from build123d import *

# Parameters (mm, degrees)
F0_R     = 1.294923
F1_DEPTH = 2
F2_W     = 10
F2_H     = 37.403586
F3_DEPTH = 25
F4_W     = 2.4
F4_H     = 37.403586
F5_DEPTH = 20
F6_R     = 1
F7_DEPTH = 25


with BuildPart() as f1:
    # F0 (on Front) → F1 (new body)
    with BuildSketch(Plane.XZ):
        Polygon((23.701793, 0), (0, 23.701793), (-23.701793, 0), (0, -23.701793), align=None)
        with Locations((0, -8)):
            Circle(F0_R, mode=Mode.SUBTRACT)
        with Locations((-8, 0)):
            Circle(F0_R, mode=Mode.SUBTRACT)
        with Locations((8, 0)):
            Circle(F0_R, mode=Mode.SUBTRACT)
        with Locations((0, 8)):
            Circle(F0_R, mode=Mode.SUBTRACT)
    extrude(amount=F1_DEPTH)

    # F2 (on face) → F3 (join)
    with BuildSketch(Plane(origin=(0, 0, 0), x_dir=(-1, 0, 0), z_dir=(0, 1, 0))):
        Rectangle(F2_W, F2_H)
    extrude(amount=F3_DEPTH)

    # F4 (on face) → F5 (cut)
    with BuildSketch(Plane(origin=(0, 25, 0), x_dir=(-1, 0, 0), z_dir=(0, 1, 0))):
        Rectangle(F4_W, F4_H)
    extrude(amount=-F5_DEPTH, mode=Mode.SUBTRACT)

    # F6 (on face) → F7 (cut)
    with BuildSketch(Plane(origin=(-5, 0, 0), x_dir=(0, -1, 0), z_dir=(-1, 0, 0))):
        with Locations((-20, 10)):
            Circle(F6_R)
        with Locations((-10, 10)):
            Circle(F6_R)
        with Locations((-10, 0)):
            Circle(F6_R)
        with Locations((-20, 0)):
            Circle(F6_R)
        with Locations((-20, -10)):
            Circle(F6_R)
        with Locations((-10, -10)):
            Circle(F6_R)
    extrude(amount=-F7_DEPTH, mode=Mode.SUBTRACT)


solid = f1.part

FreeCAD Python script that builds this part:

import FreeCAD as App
import Part
import Sketcher


def add_polygon(sketch, points):
    """Adds a closed chain of lines whose ends are joined by coincident constraints."""
    first, n = sketch.GeometryCount, len(points)
    for a, b in zip(points, points[1:] + points[:1]):
        sketch.addGeometry(Part.LineSegment(App.Vector(*a, 0), App.Vector(*b, 0)), False)
    for i in range(n):
        sketch.addConstraint(Sketcher.Constraint("Coincident", first + i, 2, first + (i + 1) % n, 1))

doc = App.newDocument("Part")
body = doc.addObject("PartDesign::Body", "Body")

# Sketch on XZ plane
sketch1 = body.newObject("Sketcher::SketchObject", "Sketch")
sketch1.AttachmentSupport = (doc.getObject("XZ_Plane"), [""])
sketch1.MapMode = "FlatFace"
add_polygon(sketch1, [(23.7, 0), (0, 23.7), (-23.7, 0), (0, -23.7)])  # lines 0-3
sketch1.addGeometry(Part.Circle(App.Vector(0, -8, 0), App.Vector(0, 0, 1), 1.3), False)  # 4
sketch1.addGeometry(Part.Circle(App.Vector(-8, 0, 0), App.Vector(0, 0, 1), 1.3), False)  # 5
sketch1.addGeometry(Part.Circle(App.Vector(8, 0, 0), App.Vector(0, 0, 1), 1.3), False)  # 6
sketch1.addGeometry(Part.Circle(App.Vector(0, 8, 0), App.Vector(0, 0, 1), 1.3), False)  # 7
sketch1.addConstraint([
    Sketcher.Constraint("Equal", 4, 5),
    Sketcher.Constraint("Equal", 5, 6),
    Sketcher.Constraint("Equal", 6, 7),
    Sketcher.Constraint("Symmetric", 5, 3, 6, 3, -1, 1),
    Sketcher.Constraint("Symmetric", 4, 3, 7, 3, -1, 1),
    Sketcher.Constraint("Symmetric", 0, 2, 2, 2, -1, 1),
    Sketcher.Constraint("Symmetric", 1, 2, 3, 2, -1, 1),
    Sketcher.Constraint("PointOnObject", 4, 3, -2),
    Sketcher.Constraint("PointOnObject", 5, 3, -1),
    Sketcher.Constraint("PointOnObject", 0, 2, -2),
    Sketcher.Constraint("PointOnObject", 1, 2, -1),
    Sketcher.Constraint("Perpendicular", 0, 1),
    Sketcher.Constraint("DistanceY", 4, 3, -1, 1, 8.0),
    Sketcher.Constraint("DistanceX", 5, 3, -1, 1, 8.0),
    Sketcher.Constraint("Diameter", 4, 2.589846),
    Sketcher.Constraint("Distance", 0, 33.519397),
])
pad1 = body.newObject("PartDesign::Pad", "Pad")
pad1.Profile = sketch1
pad1.Length = 2

# Sketch on XZ plane
sketch2 = body.newObject("Sketcher::SketchObject", "Sketch001")
sketch2.AttachmentSupport = (doc.getObject("XZ_Plane"), [""])
sketch2.MapMode = "FlatFace"
add_polygon(sketch2, [(5, 19), (5, -19), (-5, -19), (-5, 19)])  # lines 0-3
sketch2.addConstraint([
    Sketcher.Constraint("Vertical", 0),
    Sketcher.Constraint("Horizontal", 1),
    Sketcher.Constraint("Vertical", 2),
    Sketcher.Constraint("Horizontal", 3),
    Sketcher.Constraint("Symmetric", 0, 2, 2, 2, -1, 1),
    Sketcher.Constraint("DistanceX", 1, 2, 1, 1, 10.0),
    Sketcher.Constraint("DistanceY", 0, 2, 0, 1, 37.403586),
])
pad2 = body.newObject("PartDesign::Pad", "Pad001")
pad2.Profile = sketch2
pad2.Length = 25
pad2.Reversed = True

# Sketch on XZ plane
sketch3 = body.newObject("Sketcher::SketchObject", "Sketch002")
sketch3.AttachmentSupport = (doc.getObject("XZ_Plane"), [""])
sketch3.MapMode = "FlatFace"
sketch3.AttachmentOffset = App.Placement(App.Vector(0, 0, -25), App.Rotation())
add_polygon(sketch3, [(1.2, 18.7), (1.2, -18.7), (-1.2, -18.7), (-1.2, 18.7)])  # lines 0-3
sketch3.addConstraint([
    Sketcher.Constraint("Vertical", 0),
    Sketcher.Constraint("Horizontal", 1),
    Sketcher.Constraint("Vertical", 2),
    Sketcher.Constraint("Horizontal", 3),
    Sketcher.Constraint("Symmetric", 0, 2, 2, 2, -1, 1),
    Sketcher.Constraint("DistanceX", 1, 2, 1, 1, 2.4),
    Sketcher.Constraint("DistanceY", 0, 2, 0, 1, 37.403586),
])
pocket1 = body.newObject("PartDesign::Pocket", "Pocket")
pocket1.Profile = sketch3
pocket1.Length = 20
pocket1.Reversed = True

# Sketch on YZ plane
sketch4 = body.newObject("Sketcher::SketchObject", "Sketch003")
sketch4.AttachmentSupport = (doc.getObject("YZ_Plane"), [""])
sketch4.MapMode = "FlatFace"
sketch4.AttachmentOffset = App.Placement(App.Vector(0, 0, -5), App.Rotation())
sketch4.addGeometry([
    Part.Circle(App.Vector(20, 10, 0), App.Vector(0, 0, 1), 1),  # 0
    Part.Circle(App.Vector(10, 10, 0), App.Vector(0, 0, 1), 1),  # 1
    Part.Circle(App.Vector(10, 0, 0), App.Vector(0, 0, 1), 1),  # 2
    Part.Circle(App.Vector(20, 0, 0), App.Vector(0, 0, 1), 1),  # 3
    Part.Circle(App.Vector(20, -10, 0), App.Vector(0, 0, 1), 1),  # 4
    Part.Circle(App.Vector(10, -10, 0), App.Vector(0, 0, 1), 1),  # 5
], False)
sketch4.addConstraint([
    Sketcher.Constraint("Equal", 0, 1),
    Sketcher.Constraint("Equal", 1, 2),
    Sketcher.Constraint("Equal", 2, 3),
    Sketcher.Constraint("Equal", 3, 4),
    Sketcher.Constraint("Equal", 4, 5),
    Sketcher.Constraint("Symmetric", 0, 3, 4, 3, -1),
    Sketcher.Constraint("Symmetric", 1, 3, 5, 3, -1),
    Sketcher.Constraint("PointOnObject", 2, 3, -1),
    Sketcher.Constraint("PointOnObject", 3, 3, -1),
    Sketcher.Constraint("Horizontal", 0, 3, 1, 3),
    Sketcher.Constraint("Vertical", 1, 3, 2, 3),
    Sketcher.Constraint("Vertical", 0, 3, 3, 3),
    Sketcher.Constraint("Diameter", 0, 2.0),
    Sketcher.Constraint("DistanceX", -1, 1, 0, 3, 20.0),
    Sketcher.Constraint("DistanceY", -1, 1, 0, 3, 10.0),
    Sketcher.Constraint("DistanceX", -1, 1, 1, 3, 10.0),
])
pocket2 = body.newObject("PartDesign::Pocket", "Pocket001")
pocket2.Profile = sketch4
pocket2.Length = 25
pocket2.Reversed = True

doc.recompute()
